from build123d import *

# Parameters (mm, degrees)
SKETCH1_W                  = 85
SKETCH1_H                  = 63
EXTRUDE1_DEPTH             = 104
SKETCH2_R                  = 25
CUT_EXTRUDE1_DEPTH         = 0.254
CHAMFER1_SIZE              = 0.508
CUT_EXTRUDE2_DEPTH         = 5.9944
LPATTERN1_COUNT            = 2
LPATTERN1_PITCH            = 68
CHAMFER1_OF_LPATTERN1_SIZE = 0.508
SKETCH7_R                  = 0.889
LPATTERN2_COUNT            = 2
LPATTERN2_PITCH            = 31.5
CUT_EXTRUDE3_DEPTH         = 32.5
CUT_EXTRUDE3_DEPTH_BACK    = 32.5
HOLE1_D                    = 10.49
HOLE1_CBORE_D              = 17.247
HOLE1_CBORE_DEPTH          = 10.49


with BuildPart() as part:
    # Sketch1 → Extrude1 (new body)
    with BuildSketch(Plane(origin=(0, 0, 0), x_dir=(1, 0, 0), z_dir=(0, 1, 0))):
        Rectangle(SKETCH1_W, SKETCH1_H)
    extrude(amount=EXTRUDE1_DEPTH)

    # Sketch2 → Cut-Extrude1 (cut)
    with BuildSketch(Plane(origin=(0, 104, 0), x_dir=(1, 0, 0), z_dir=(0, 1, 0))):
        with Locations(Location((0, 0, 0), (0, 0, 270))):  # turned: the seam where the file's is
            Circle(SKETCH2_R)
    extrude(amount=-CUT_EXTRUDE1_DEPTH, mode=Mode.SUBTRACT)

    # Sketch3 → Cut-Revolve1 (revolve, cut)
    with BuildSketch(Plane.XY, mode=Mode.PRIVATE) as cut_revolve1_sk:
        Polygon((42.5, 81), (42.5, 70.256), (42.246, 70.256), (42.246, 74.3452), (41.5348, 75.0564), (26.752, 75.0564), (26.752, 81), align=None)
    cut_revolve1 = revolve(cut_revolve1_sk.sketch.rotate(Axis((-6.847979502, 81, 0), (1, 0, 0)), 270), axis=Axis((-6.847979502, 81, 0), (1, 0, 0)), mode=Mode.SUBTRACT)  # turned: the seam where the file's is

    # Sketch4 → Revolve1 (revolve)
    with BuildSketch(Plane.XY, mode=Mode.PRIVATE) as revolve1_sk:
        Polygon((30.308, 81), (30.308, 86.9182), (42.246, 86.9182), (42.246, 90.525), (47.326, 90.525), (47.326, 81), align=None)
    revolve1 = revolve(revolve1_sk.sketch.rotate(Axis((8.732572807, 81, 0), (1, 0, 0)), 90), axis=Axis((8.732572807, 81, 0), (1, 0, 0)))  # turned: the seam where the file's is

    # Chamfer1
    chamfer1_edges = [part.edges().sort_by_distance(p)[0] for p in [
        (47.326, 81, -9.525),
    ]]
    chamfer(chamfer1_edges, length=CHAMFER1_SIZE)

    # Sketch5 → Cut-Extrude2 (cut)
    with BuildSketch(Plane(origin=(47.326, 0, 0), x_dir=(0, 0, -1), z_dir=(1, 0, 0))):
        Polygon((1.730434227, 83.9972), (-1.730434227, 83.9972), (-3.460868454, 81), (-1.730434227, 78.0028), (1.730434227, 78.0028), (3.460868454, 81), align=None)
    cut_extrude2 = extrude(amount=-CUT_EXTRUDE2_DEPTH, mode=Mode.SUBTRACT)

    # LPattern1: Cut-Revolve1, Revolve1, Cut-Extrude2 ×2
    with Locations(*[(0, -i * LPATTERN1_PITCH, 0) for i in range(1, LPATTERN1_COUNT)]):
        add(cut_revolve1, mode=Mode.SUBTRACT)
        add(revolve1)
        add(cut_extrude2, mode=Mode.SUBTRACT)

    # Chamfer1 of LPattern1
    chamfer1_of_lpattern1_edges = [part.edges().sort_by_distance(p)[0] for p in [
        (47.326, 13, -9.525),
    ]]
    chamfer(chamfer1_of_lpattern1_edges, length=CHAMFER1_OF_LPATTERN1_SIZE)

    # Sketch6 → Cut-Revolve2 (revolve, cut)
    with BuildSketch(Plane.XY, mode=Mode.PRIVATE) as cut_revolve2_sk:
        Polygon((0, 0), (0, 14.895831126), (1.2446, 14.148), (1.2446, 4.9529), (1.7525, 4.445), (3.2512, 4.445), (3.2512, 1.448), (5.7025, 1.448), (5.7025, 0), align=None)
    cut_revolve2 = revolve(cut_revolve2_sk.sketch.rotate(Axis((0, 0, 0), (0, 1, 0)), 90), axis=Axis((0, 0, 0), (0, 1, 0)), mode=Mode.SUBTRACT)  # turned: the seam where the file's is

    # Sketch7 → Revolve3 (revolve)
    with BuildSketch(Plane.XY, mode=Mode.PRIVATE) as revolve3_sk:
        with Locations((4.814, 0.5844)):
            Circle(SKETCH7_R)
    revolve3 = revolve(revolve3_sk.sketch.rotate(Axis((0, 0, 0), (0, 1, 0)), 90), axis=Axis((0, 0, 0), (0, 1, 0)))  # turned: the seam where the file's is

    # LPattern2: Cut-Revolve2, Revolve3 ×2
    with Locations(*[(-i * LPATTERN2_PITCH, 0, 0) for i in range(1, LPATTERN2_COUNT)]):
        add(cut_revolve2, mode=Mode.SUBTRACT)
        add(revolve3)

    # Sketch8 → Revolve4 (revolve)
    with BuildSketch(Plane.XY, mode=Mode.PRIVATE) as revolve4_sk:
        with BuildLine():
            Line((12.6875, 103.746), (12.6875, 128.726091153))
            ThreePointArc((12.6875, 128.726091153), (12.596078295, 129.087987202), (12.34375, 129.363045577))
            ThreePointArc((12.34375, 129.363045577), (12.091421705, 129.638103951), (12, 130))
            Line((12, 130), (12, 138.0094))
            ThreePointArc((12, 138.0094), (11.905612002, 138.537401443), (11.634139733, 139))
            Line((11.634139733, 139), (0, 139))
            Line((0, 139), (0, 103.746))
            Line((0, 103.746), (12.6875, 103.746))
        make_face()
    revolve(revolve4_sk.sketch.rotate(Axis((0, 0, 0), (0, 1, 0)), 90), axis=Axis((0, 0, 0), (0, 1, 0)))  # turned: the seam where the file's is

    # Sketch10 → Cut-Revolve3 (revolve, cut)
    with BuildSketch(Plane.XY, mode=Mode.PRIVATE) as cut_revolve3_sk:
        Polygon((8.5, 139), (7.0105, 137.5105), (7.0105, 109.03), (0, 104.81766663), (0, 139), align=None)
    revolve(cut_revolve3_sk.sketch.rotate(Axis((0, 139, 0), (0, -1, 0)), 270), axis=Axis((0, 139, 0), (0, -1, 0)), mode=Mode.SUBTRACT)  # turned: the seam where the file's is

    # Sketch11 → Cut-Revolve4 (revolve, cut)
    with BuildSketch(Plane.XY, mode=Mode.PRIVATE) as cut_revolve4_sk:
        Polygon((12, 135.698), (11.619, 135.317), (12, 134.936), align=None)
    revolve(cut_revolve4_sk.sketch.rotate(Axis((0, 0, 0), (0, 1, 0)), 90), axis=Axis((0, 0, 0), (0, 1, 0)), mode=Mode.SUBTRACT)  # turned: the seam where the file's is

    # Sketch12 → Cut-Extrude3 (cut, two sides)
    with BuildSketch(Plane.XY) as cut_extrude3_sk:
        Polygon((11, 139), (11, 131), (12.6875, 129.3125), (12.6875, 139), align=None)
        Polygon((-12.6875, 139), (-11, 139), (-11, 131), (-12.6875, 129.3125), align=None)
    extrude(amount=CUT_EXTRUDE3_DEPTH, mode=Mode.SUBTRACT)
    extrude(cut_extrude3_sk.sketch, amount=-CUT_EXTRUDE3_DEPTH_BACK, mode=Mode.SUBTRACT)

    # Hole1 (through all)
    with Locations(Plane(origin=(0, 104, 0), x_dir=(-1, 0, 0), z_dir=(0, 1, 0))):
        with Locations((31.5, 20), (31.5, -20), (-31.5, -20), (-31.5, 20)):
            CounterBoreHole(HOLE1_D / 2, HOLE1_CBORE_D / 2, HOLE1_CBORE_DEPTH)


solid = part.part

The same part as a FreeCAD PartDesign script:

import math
import FreeCAD as App
import Part
import Sketcher

V = App.Vector
Q = App.Units.Quantity


def edges_at(feature, points):
    """Names of the edges that pass closest to the given points."""
    edges = feature.Shape.Edges
    near = lambda p: min(range(len(edges)), key=lambda i: edges[i].distToShape(Part.Vertex(*p))[0])
    return sorted({f"Edge{near(p) + 1}" for p in points})

doc = App.newDocument("Part")
body = doc.addObject("PartDesign::Body", "Body")

# Sketch on XZ plane
sketch1 = body.newObject("Sketcher::SketchObject", "Sketch")
sketch1.AttachmentSupport = (doc.getObject("XZ_Plane"), [""])
sketch1.MapMode = "FlatFace"
sketch1.addGeometry(Part.LineSegment(V(-42, -32, 0), V(-42, 32, 0)), False)
sketch1.addGeometry(Part.LineSegment(V(-42, 32, 0), V(42, 32, 0)), False)
sketch1.addGeometry(Part.LineSegment(V(42, 32, 0), V(42, -32, 0)), False)
sketch1.addGeometry(Part.LineSegment(V(42, -32, 0), V(-42, -32, 0)), False)
sketch1.addConstraint(Sketcher.Constraint("Coincident", 0, 2, 1, 1))
sketch1.addConstraint(Sketcher.Constraint("Coincident", 1, 2, 2, 1))
sketch1.addConstraint(Sketcher.Constraint("Coincident", 2, 2, 3, 1))
sketch1.addConstraint(Sketcher.Constraint("Coincident", 3, 2, 0, 1))
sketch1.addConstraint(Sketcher.Constraint("Vertical", 0))
sketch1.addConstraint(Sketcher.Constraint("Horizontal", 1))
sketch1.addConstraint(Sketcher.Constraint("Vertical", 2))
sketch1.addConstraint(Sketcher.Constraint("Horizontal", 3))
sketch1.addConstraint(Sketcher.Constraint("Symmetric", 0, 2, 2, 2, -1, 1))
sketch1.addConstraint(Sketcher.Constraint("DistanceX", 1, 1, 1, 2, 85.0))
sketch1.addConstraint(Sketcher.Constraint("DistanceY", 0, 1, 0, 2, 63.0))
pad1 = body.newObject("PartDesign::Pad", "Pad")
pad1.Profile = sketch1
pad1.Length = 104
pad1.Reversed = True

# Sketch on XZ plane
sketch2 = body.newObject("Sketcher::SketchObject", "Sketch001")
sketch2.AttachmentSupport = (doc.getObject("XZ_Plane"), [""])
sketch2.MapMode = "FlatFace"
sketch2.AttachmentOffset = App.Placement(V(0, 0, -104), App.Rotation())
sketch2.addGeometry(Part.Circle(V(0, 0, 0), V(0, 0, 1), 25), False)
sketch2.addConstraint(Sketcher.Constraint("Coincident", 0, 3, -1, 1))
sketch2.addConstraint(Sketcher.Constraint("Diameter", 0, 50.0))
pocket1 = body.newObject("PartDesign::Pocket", "Pocket")
pocket1.Profile = sketch2
pocket1.Length = Q("0.01 in")
pocket1.Reversed = True

# Sketch on XY plane
sketch3 = body.newObject("Sketcher::SketchObject", "Sketch002")
sketch3.AttachmentSupport = (doc.getObject("XY_Plane"), [""])
sketch3.MapMode = "FlatFace"
sketch3.addGeometry(Part.LineSegment(V(42.5, 70.26, 0), V(42.5, 81, 0)), False)
sketch3.addGeometry(Part.LineSegment(V(42.5, 81, 0), V(26.75, 81, 0)), False)
sketch3.addGeometry(Part.LineSegment(V(26.75, 81, 0), V(26.75, 75.06, 0)), False)
sketch3.addGeometry(Part.LineSegment(V(26.75, 75.06, 0), V(41.53, 75.06, 0)), False)
sketch3.addGeometry(Part.LineSegment(V(41.53, 75.06, 0), V(42.25, 74.35, 0)), False)
sketch3.addGeometry(Part.LineSegment(V(42.25, 74.35, 0), V(42.25, 70.26, 0)), False)
sketch3.addGeometry(Part.LineSegment(V(42.25, 70.26, 0), V(42.5, 70.26, 0)), False)
sketch3.addGeometry(Part.LineSegment(V(26.75, 81, 0), V(42.5, 81, 0)), True)  # axis
sketch3.addConstraint(Sketcher.Constraint("Coincident", 0, 2, 1, 1))
sketch3.addConstraint(Sketcher.Constraint("Coincident", 1, 2, 2, 1))
sketch3.addConstraint(Sketcher.Constraint("Coincident", 2, 2, 3, 1))
sketch3.addConstraint(Sketcher.Constraint("Coincident", 3, 2, 4, 1))
sketch3.addConstraint(Sketcher.Constraint("Coincident", 4, 2, 5, 1))
sketch3.addConstraint(Sketcher.Constraint("Coincident", 5, 2, 6, 1))
sketch3.addConstraint(Sketcher.Constraint("Coincident", 6, 2, 0, 1))
sketch3.addConstraint(Sketcher.Constraint("Vertical", 0))
sketch3.addConstraint(Sketcher.Constraint("Horizontal", 1))
sketch3.addConstraint(Sketcher.Constraint("Vertical", 2))
sketch3.addConstraint(Sketcher.Constraint("Horizontal", 3))
sketch3.addConstraint(Sketcher.Constraint("Vertical", 5))
sketch3.addConstraint(Sketcher.Constraint("Horizontal", 6))
sketch3.addConstraint(Sketcher.Constraint("Horizontal", 7))
sketch3.addConstraint(Sketcher.Constraint("Coincident", 7, 1, 1, 2))
sketch3.addConstraint(Sketcher.Constraint("Vertical", 6, 2, 7, 2))
sketch3.addConstraint(Sketcher.Constraint("Angle", 4, Q("-45 deg")))
sketch3.addConstraint(Sketcher.Constraint("DistanceX", 1, 2, 1, 1, Q("0.62 in")))
sketch3.addConstraint(Sketcher.Constraint("DistanceX", 6, 1, 6, 2, Q("0.01 in")))
sketch3.addConstraint(Sketcher.Constraint("DistanceX", 3, 1, 3, 2, Q("0.582 in")))
sketch3.addConstraint(Sketcher.Constraint("DistanceY", 2, 2, 2, 1, Q("0.234 in")))
sketch3.addConstraint(Sketcher.Constraint("DistanceY", 0, 1, 0, 2, 10.744))
sketch3.addConstraint(Sketcher.Constraint("DistanceX", -1, 1, 0, 2, 42.5))
sketch3.addConstraint(Sketcher.Constraint("DistanceY", -1, 1, 0, 2, 81.0))
groove = body.newObject("PartDesign::Groove", "Groove")
groove.Profile = sketch3
groove.ReferenceAxis = (sketch3, ["Axis0"])
groove.Angle = 360

# Sketch on XY plane
sketch4 = body.newObject("Sketcher::SketchObject", "Sketch003")
sketch4.AttachmentSupport = (doc.getObject("XY_Plane"), [""])
sketch4.MapMode = "FlatFace"
sketch4.addGeometry(Part.LineSegment(V(30.3, 86.9, 0), V(30.3, 81, 0)), False)
sketch4.addGeometry(Part.LineSegment(V(30.3, 81, 0), V(47.3, 81, 0)), False)
sketch4.addGeometry(Part.LineSegment(V(47.3, 81, 0), V(47.3, 90.5, 0)), False)
sketch4.addGeometry(Part.LineSegment(V(47.3, 90.5, 0), V(42.2, 90.5, 0)), False)
sketch4.addGeometry(Part.LineSegment(V(42.2, 90.5, 0), V(42.2, 86.9, 0)), False)
sketch4.addGeometry(Part.LineSegment(V(42.2, 86.9, 0), V(30.3, 86.9, 0)), False)
sketch4.addGeometry(Part.LineSegment(V(30.3, 81, 0), V(47.3, 81, 0)), True)  # axis
sketch4.addConstraint(Sketcher.Constraint("Coincident", 0, 2, 1, 1))
sketch4.addConstraint(Sketcher.Constraint("Coincident", 1, 2, 2, 1))
sketch4.addConstraint(Sketcher.Constraint("Coincident", 2, 2, 3, 1))
sketch4.addConstraint(Sketcher.Constraint("Coincident", 3, 2, 4, 1))
sketch4.addConstraint(Sketcher.Constraint("Coincident", 4, 2, 5, 1))
sketch4.addConstraint(Sketcher.Constraint("Coincident", 5, 2, 0, 1))
sketch4.addConstraint(Sketcher.Constraint("Vertical", 0))
sketch4.addConstraint(Sketcher.Constraint("Horizontal", 1))
sketch4.addConstraint(Sketcher.Constraint("Vertical", 2))
sketch4.addConstraint(Sketcher.Constraint("Horizontal", 3))
sketch4.addConstraint(Sketcher.Constraint("Vertical", 4))
sketch4.addConstraint(Sketcher.Constraint("Horizontal", 5))
sketch4.addConstraint(Sketcher.Constraint("Horizontal", 6))
sketch4.addConstraint(Sketcher.Constraint("Coincident", 6, 1, 0, 2))
sketch4.addConstraint(Sketcher.Constraint("Vertical", 2, 2, 6, 2))
sketch4.addConstraint(Sketcher.Constraint("DistanceX", 3, 2, 3, 1, Q("0.2 in")))
sketch4.addConstraint(Sketcher.Constraint("DistanceX", 1, 1, 1, 2, Q("0.67 in")))
sketch4.addConstraint(Sketcher.Constraint("DistanceY", 0, 2, 0, 1, Q("0.233 in")))
sketch4.addConstraint(Sketcher.Constraint("DistanceY", 2, 1, 2, 2, Q("0.375 in")))
sketch4.addConstraint(Sketcher.Constraint("DistanceX", -1, 1, 0, 2, 30.308))
sketch4.addConstraint(Sketcher.Constraint("DistanceY", -1, 1, 0, 2, 81.0))
revolution = body.newObject("PartDesign::Revolution", "Revolution")
revolution.Profile = sketch4
revolution.ReferenceAxis = (sketch4, ["Axis0"])
revolution.Angle = 360
doc.recompute()

chamfer = body.newObject("PartDesign::Chamfer", "Chamfer")
chamfer.Base = (revolution, edges_at(revolution, [(47.326, 81, -9.525)]))
chamfer.Size = Q("0.02 in")

# Sketch on YZ plane
sketch5 = body.newObject("Sketcher::SketchObject", "Sketch004")
sketch5.AttachmentSupport = (doc.getObject("YZ_Plane"), [""])
sketch5.MapMode = "FlatFace"
sketch5.AttachmentOffset = App.Placement(V(0, 0, 47.326), App.Rotation())
sketch5.addGeometry(Part.LineSegment(V(84, -1.7, 0), V(84, 1.7, 0)), False)
sketch5.addGeometry(Part.LineSegment(V(84, 1.7, 0), V(81, 3.5, 0)), False)
sketch5.addGeometry(Part.LineSegment(V(81, 3.5, 0), V(78, 1.7, 0)), False)
sketch5.addGeometry(Part.LineSegment(V(78, 1.7, 0), V(78, -1.7, 0)), False)
sketch5.addGeometry(Part.LineSegment(V(78, -1.7, 0), V(81, -3.5, 0)), False)
sketch5.addGeometry(Part.LineSegment(V(81, -3.5, 0), V(84, -1.7, 0)), False)
sketch5.addConstraint(Sketcher.Constraint("Coincident", 0, 2, 1, 1))
sketch5.addConstraint(Sketcher.Constraint("Coincident", 1, 2, 2, 1))
sketch5.addConstraint(Sketcher.Constraint("Coincident", 2, 2, 3, 1))
sketch5.addConstraint(Sketcher.Constraint("Coincident", 3, 2, 4, 1))
sketch5.addConstraint(Sketcher.Constraint("Coincident", 4, 2, 5, 1))
sketch5.addConstraint(Sketcher.Constraint("Coincident", 5, 2, 0, 1))
sketch5.addConstraint(Sketcher.Constraint("Vertical", 0))
sketch5.addConstraint(Sketcher.Constraint("Vertical", 3))
sketch5.addConstraint(Sketcher.Constraint("Symmetric", 1, 2, 4, 2, -1))
sketch5.addConstraint(Sketcher.Constraint("Parallel", 1, 4))
sketch5.addConstraint(Sketcher.Constraint("Parallel", 2, 5))
sketch5.addConstraint(Sketcher.Constraint("Horizontal", 0, 2, 2, 2))
sketch5.addConstraint(Sketcher.Constraint("Horizontal", 3, 2, 5, 2))
sketch5.addConstraint(Sketcher.Constraint("Angle", 1, Q("150 deg")))
sketch5.addConstraint(Sketcher.Constraint("DistanceX", 1, 2, 0, 2, Q("0.118 in")))
sketch5.addConstraint(Sketcher.Constraint("DistanceY", 0, 1, 0, 2, 3.460868))
sketch5.addConstraint(Sketcher.Constraint("DistanceX", -1, 1, 0, 2, 83.9972))
pocket2 = body.newObject("PartDesign::Pocket", "Pocket001")
pocket2.Profile = sketch5
pocket2.Length = Q("0.236 in")
doc.recompute()

linearpattern = body.newObject("PartDesign::LinearPattern", "LinearPattern")
linearpattern.Originals = [groove, revolution, pocket2]
linearpattern.Direction = (doc.getObject("Y_Axis"), [""])
linearpattern.Mode = "offset"
linearpattern.Offset = 68
linearpattern.Occurrences = 2
linearpattern.Reversed = True
body.Tip = linearpattern
doc.recompute()

chamfer2 = body.newObject("PartDesign::Chamfer", "Chamfer001")
chamfer2.Base = (linearpattern, edges_at(linearpattern, [(47.326, 13, -9.525)]))
chamfer2.Size = Q("0.02 in")

# Sketch on XY plane
sketch6 = body.newObject("Sketcher::SketchObject", "Sketch005")
sketch6.AttachmentSupport = (doc.getObject("XY_Plane"), [""])
sketch6.MapMode = "FlatFace"
sketch6.addGeometry(Part.LineSegment(V(0, 14.9, 0), V(0, 0, 0)), False)
sketch6.addGeometry(Part.LineSegment(V(0, 0, 0), V(5.7, 0, 0)), False)
sketch6.addGeometry(Part.LineSegment(V(5.7, 0, 0), V(5.7, 1.4, 0)), False)
sketch6.addGeometry(Part.LineSegment(V(5.7, 1.4, 0), V(3.3, 1.4, 0)), False)
sketch6.addGeometry(Part.LineSegment(V(3.3, 1.4, 0), V(3.3, 4.4, 0)), False)
sketch6.addGeometry(Part.LineSegment(V(3.3, 4.4, 0), V(1.8, 4.4, 0)), False)
sketch6.addGeometry(Part.LineSegment(V(1.8, 4.4, 0), V(1.2, 5, 0)), False)
sketch6.addGeometry(Part.LineSegment(V(1.2, 5, 0), V(1.2, 14.1, 0)), False)
sketch6.addGeometry(Part.LineSegment(V(1.2, 14.1, 0), V(0, 14.9, 0)), False)
sketch6.addConstraint(Sketcher.Constraint("Coincident", 0, 2, 1, 1))
sketch6.addConstraint(Sketcher.Constraint("Coincident", 1, 2, 2, 1))
sketch6.addConstraint(Sketcher.Constraint("Coincident", 2, 2, 3, 1))
sketch6.addConstraint(Sketcher.Constraint("Coincident", 3, 2, 4, 1))
sketch6.addConstraint(Sketcher.Constraint("Coincident", 4, 2, 5, 1))
sketch6.addConstraint(Sketcher.Constraint("Coincident", 5, 2, 6, 1))
sketch6.addConstraint(Sketcher.Constraint("Coincident", 6, 2, 7, 1))
sketch6.addConstraint(Sketcher.Constraint("Coincident", 7, 2, 8, 1))
sketch6.addConstraint(Sketcher.Constraint("Coincident", 8, 2, 0, 1))
sketch6.addConstraint(Sketcher.Constraint("Vertical", 0))
sketch6.addConstraint(Sketcher.Constraint("Horizontal", 1))
sketch6.addConstraint(Sketcher.Constraint("Vertical", 2))
sketch6.addConstraint(Sketcher.Constraint("Horizontal", 3))
sketch6.addConstraint(Sketcher.Constraint("Vertical", 4))
sketch6.addConstraint(Sketcher.Constraint("Horizontal", 5))
sketch6.addConstraint(Sketcher.Constraint("Vertical", 7))
sketch6.addConstraint(Sketcher.Constraint("Coincident", 0, 2, -1, 1))
sketch6.addConstraint(Sketcher.Constraint("Angle", 6, Q("135 deg")))
sketch6.addConstraint(Sketcher.Constraint("Angle", 8, Q("149 deg")))
sketch6.addConstraint(Sketcher.Constraint("DistanceY", 3, 2, 7, 2, Q("0.5 in")))
sketch6.addConstraint(Sketcher.Constraint("DistanceX", -1, 1, 3, 2, Q("0.128 in")))
sketch6.addConstraint(Sketcher.Constraint("DistanceY", -1, 1, 4, 2, Q("0.175 in")))
sketch6.addConstraint(Sketcher.Constraint("DistanceX", -1, 1, 6, 2, Q("0.049 in")))
sketch6.addConstraint(Sketcher.Constraint("DistanceX", 1, 1, 1, 2, 5.7025))
sketch6.addConstraint(Sketcher.Constraint("DistanceX", 5, 2, 5, 1, 1.4987))
sketch6.addConstraint(Sketcher.Constraint("DistanceY", 2, 1, 2, 2, 1.448))
groove2 = body.newObject("PartDesign::Groove", "Groove001")
groove2.Profile = sketch6
groove2.ReferenceAxis = (sketch6, ["V_Axis"])
groove2.Angle = 360

# Sketch on XY plane
sketch7 = body.newObject("Sketcher::SketchObject", "Sketch006")
sketch7.AttachmentSupport = (doc.getObject("XY_Plane"), [""])
sketch7.MapMode = "FlatFace"
sketch7.addGeometry(Part.Circle(V(4.8, 0.6, 0), V(0, 0, 1), 0.9), False)
sketch7.addConstraint(Sketcher.Constraint("Diameter", 0, Q("0.07 in")))
sketch7.addConstraint(Sketcher.Constraint("DistanceX", -1, 1, 0, 3, 4.814))
sketch7.addConstraint(Sketcher.Constraint("DistanceY", -1, 1, 0, 3, 0.5844))
revolution2 = body.newObject("PartDesign::Revolution", "Revolution001")
revolution2.Profile = sketch7
revolution2.ReferenceAxis = (sketch7, ["V_Axis"])
revolution2.Angle = 360
doc.recompute()

linearpattern2 = body.newObject("PartDesign::LinearPattern", "LinearPattern001")
linearpattern2.Originals = [groove2, revolution2]
linearpattern2.Direction = (doc.getObject("X_Axis"), [""])
linearpattern2.Mode = "offset"
linearpattern2.Offset = 31.5
linearpattern2.Occurrences = 2
linearpattern2.Reversed = True
body.Tip = linearpattern2

# Sketch on XY plane
sketch8 = body.newObject("Sketcher::SketchObject", "Sketch007")
sketch8.AttachmentSupport = (doc.getObject("XY_Plane"), [""])
sketch8.MapMode = "FlatFace"
sketch8.addGeometry(Part.LineSegment(V(12.7, 103.7, 0), V(12.7, 128.7, 0)), False)
sketch8.addGeometry(Part.ArcOfCircle(Part.Circle(V(11.9, 128.7, 0), V(0, 0, 1), 0.8), math.radians(0), math.radians(57)), False)
sketch8.addGeometry(Part.ArcOfCircle(Part.Circle(V(12.8, 130, 0), V(0, 0, 1), 0.8), math.radians(180), math.radians(237)), False)
sketch8.addGeometry(Part.LineSegment(V(12, 130, 0), V(12, 138, 0)), False)
sketch8.addGeometry(Part.ArcOfCircle(Part.Circle(V(10.5, 138, 0), V(0, 0, 1), 1.5), math.radians(0), math.radians(41)), False)
sketch8.addGeometry(Part.LineSegment(V(11.6, 139, 0), V(0, 139, 0)), False)
sketch8.addGeometry(Part.LineSegment(V(0, 139, 0), V(0, 103.7, 0)), False)
sketch8.addGeometry(Part.LineSegment(V(0, 103.7, 0), V(12.7, 103.7, 0)), False)
sketch8.addConstraint(Sketcher.Constraint("Tangent", 0, 2, 1, 1))
sketch8.addConstraint(Sketcher.Constraint("Tangent", 1, 2, 2, 2))
sketch8.addConstraint(Sketcher.Constraint("Tangent", 2, 1, 3, 1))
sketch8.addConstraint(Sketcher.Constraint("Tangent", 3, 2, 4, 1))
sketch8.addConstraint(Sketcher.Constraint("Coincident", 4, 2, 5, 1))
sketch8.addConstraint(Sketcher.Constraint("Coincident", 5, 2, 6, 1))
sketch8.addConstraint(Sketcher.Constraint("Coincident", 6, 2, 7, 1))
sketch8.addConstraint(Sketcher.Constraint("Coincident", 7, 2, 0, 1))
sketch8.addConstraint(Sketcher.Constraint("Vertical", 0))
sketch8.addConstraint(Sketcher.Constraint("Vertical", 3))
sketch8.addConstraint(Sketcher.Constraint("Horizontal", 5))
sketch8.addConstraint(Sketcher.Constraint("Vertical", 6))
sketch8.addConstraint(Sketcher.Constraint("Horizontal", 7))
sketch8.addConstraint(Sketcher.Constraint("Equal", 1, 2))
sketch8.addConstraint(Sketcher.Constraint("PointOnObject", 5, 2, -2))
sketch8.addConstraint(Sketcher.Constraint("Radius", 1, Q("0.03 in")))
sketch8.addConstraint(Sketcher.Constraint("Radius", 4, Q("0.06 in")))
sketch8.addConstraint(Sketcher.Constraint("DistanceY", 3, 2, 4, 2, Q("0.039 in")))
sketch8.addConstraint(Sketcher.Constraint("DistanceX", 7, 1, 7, 2, 12.6875))
sketch8.addConstraint(Sketcher.Constraint("DistanceY", 3, 1, 3, 2, 8.0094))
sketch8.addConstraint(Sketcher.Constraint("DistanceY", 6, 2, 6, 1, 35.254))
sketch8.addConstraint(Sketcher.Constraint("DistanceX", 5, 2, 5, 1, 11.63414))
sketch8.addConstraint(Sketcher.Constraint("DistanceY", -1, 1, 2, 3, 130.0))
revolution3 = body.newObject("PartDesign::Revolution", "Revolution002")
revolution3.Profile = sketch8
revolution3.ReferenceAxis = (sketch8, ["V_Axis"])
revolution3.Angle = 360

# Sketch on XY plane
sketch9 = body.newObject("Sketcher::SketchObject", "Sketch008")
sketch9.AttachmentSupport = (doc.getObject("XY_Plane"), [""])
sketch9.MapMode = "FlatFace"
sketch9.addGeometry(Part.LineSegment(V(7, 137.5, 0), V(8.5, 139, 0)), False)
sketch9.addGeometry(Part.LineSegment(V(8.5, 139, 0), V(0, 139, 0)), False)
sketch9.addGeometry(Part.LineSegment(V(0, 139, 0), V(0, 104.8, 0)), False)
sketch9.addGeometry(Part.LineSegment(V(0, 104.8, 0), V(7, 109, 0)), False)
sketch9.addGeometry(Part.LineSegment(V(7, 109, 0), V(7, 137.5, 0)), False)
sketch9.addConstraint(Sketcher.Constraint("Coincident", 0, 2, 1, 1))
sketch9.addConstraint(Sketcher.Constraint("Coincident", 1, 2, 2, 1))
sketch9.addConstraint(Sketcher.Constraint("Coincident", 2, 2, 3, 1))
sketch9.addConstraint(Sketcher.Constraint("Coincident", 3, 2, 4, 1))
sketch9.addConstraint(Sketcher.Constraint("Coincident", 4, 2, 0, 1))
sketch9.addConstraint(Sketcher.Constraint("Horizontal", 1))
sketch9.addConstraint(Sketcher.Constraint("Vertical", 2))
sketch9.addConstraint(Sketcher.Constraint("Vertical", 4))
sketch9.addConstraint(Sketcher.Constraint("PointOnObject", 1, 2, -2))
sketch9.addConstraint(Sketcher.Constraint("Angle", 0, Q("45 deg")))
sketch9.addConstraint(Sketcher.Constraint("Angle", 3, Q("31 deg")))
sketch9.addConstraint(Sketcher.Constraint("DistanceX", 1, 2, 1, 1, 8.5))
sketch9.addConstraint(Sketcher.Constraint("DistanceY", 4, 1, 4, 2, 28.4805))
sketch9.addConstraint(Sketcher.Constraint("DistanceY", -1, 1, 0, 2, 139.0))
sketch9.addConstraint(Sketcher.Constraint("DistanceX", -1, 1, 3, 2, 7.0105))
groove3 = body.newObject("PartDesign::Groove", "Groove002")
groove3.Profile = sketch9
groove3.ReferenceAxis = (sketch9, ["V_Axis"])
groove3.Angle = 360

# Sketch on XY plane
sketch10 = body.newObject("Sketcher::SketchObject", "Sketch009")
sketch10.AttachmentSupport = (doc.getObject("XY_Plane"), [""])
sketch10.MapMode = "FlatFace"
sketch10.addGeometry(Part.LineSegment(V(12, 135.7, 0), V(11.6, 135.3, 0)), False)
sketch10.addGeometry(Part.LineSegment(V(11.6, 135.3, 0), V(12, 134.9, 0)), False)
sketch10.addGeometry(Part.LineSegment(V(12, 134.9, 0), V(12, 135.7, 0)), False)
sketch10.addConstraint(Sketcher.Constraint("Coincident", 0, 2, 1, 1))
sketch10.addConstraint(Sketcher.Constraint("Coincident", 1, 2, 2, 1))
sketch10.addConstraint(Sketcher.Constraint("Coincident", 2, 2, 0, 1))
sketch10.addConstraint(Sketcher.Constraint("Vertical", 2))
sketch10.addConstraint(Sketcher.Constraint("Perpendicular", 0, 1))
sketch10.addConstraint(Sketcher.Constraint("Equal", 0, 1))
sketch10.addConstraint(Sketcher.Constraint("DistanceY", 2, 1, 2, 2, Q("0.03 in")))
sketch10.addConstraint(Sketcher.Constraint("DistanceX", -1, 1, 0, 2, 11.619))
sketch10.addConstraint(Sketcher.Constraint("DistanceY", -1, 1, 0, 2, 135.317))
groove4 = body.newObject("PartDesign::Groove", "Groove003")
groove4.Profile = sketch10
groove4.ReferenceAxis = (sketch10, ["V_Axis"])
groove4.Angle = 360

# Sketch on XY plane
sketch11 = body.newObject("Sketcher::SketchObject", "Sketch010")
sketch11.AttachmentSupport = (doc.getObject("XY_Plane"), [""])
sketch11.MapMode = "FlatFace"
sketch11.addGeometry(Part.LineSegment(V(11, 139, 0), V(11, 131, 0)), False)
sketch11.addGeometry(Part.LineSegment(V(11, 131, 0), V(12.7, 129.3, 0)), False)
sketch11.addGeometry(Part.LineSegment(V(12.7, 129.3, 0), V(12.7, 139, 0)), False)
sketch11.addGeometry(Part.LineSegment(V(12.7, 139, 0), V(11, 139, 0)), False)
sketch11.addGeometry(Part.LineSegment(V(-11, 139, 0), V(-12.7, 139, 0)), False)
sketch11.addGeometry(Part.LineSegment(V(-12.7, 139, 0), V(-12.7, 129.3, 0)), False)
sketch11.addGeometry(Part.LineSegment(V(-12.7, 129.3, 0), V(-11, 131, 0)), False)
sketch11.addGeometry(Part.LineSegment(V(-11, 131, 0), V(-11, 139, 0)), False)
sketch11.addConstraint(Sketcher.Constraint("Coincident", 0, 2, 1, 1))
sketch11.addConstraint(Sketcher.Constraint("Coincident", 1, 2, 2, 1))
sketch11.addConstraint(Sketcher.Constraint("Coincident", 2, 2, 3, 1))
sketch11.addConstraint(Sketcher.Constraint("Coincident", 3, 2, 0, 1))
sketch11.addConstraint(Sketcher.Constraint("Coincident", 4, 2, 5, 1))
sketch11.addConstraint(Sketcher.Constraint("Coincident", 5, 2, 6, 1))
sketch11.addConstraint(Sketcher.Constraint("Coincident", 6, 2, 7, 1))
sketch11.addConstraint(Sketcher.Constraint("Coincident", 7, 2, 4, 1))
sketch11.addConstraint(Sketcher.Constraint("Vertical", 0))
sketch11.addConstraint(Sketcher.Constraint("Vertical", 2))
sketch11.addConstraint(Sketcher.Constraint("Horizontal", 3))
sketch11.addConstraint(Sketcher.Constraint("Horizontal", 4))
sketch11.addConstraint(Sketcher.Constraint("Vertical", 5))
sketch11.addConstraint(Sketcher.Constraint("Vertical", 7))
sketch11.addConstraint(Sketcher.Constraint("Symmetric", 2, 2, 4, 2, -2))
sketch11.addConstraint(Sketcher.Constraint("Symmetric", 0, 2, 6, 2, -2))
sketch11.addConstraint(Sketcher.Constraint("Perpendicular", 1, 6))
sketch11.addConstraint(Sketcher.Constraint("Horizontal", 1, 2, 5, 2))
sketch11.addConstraint(Sketcher.Constraint("DistanceX", 3, 2, 3, 1, 1.6875))
sketch11.addConstraint(Sketcher.Constraint("DistanceY", 0, 2, 0, 1, 8.0))
sketch11.addConstraint(Sketcher.Constraint("DistanceX", -1, 1, 0, 2, 11.0))
sketch11.addConstraint(Sketcher.Constraint("DistanceY", -1, 1, 0, 2, 131.0))
pocket3 = body.newObject("PartDesign::Pocket", "Pocket002")
pocket3.Profile = sketch11
pocket3.Type = "ThroughAll"
pocket3.Midplane = True

# Sketch on XZ plane
sketch12 = body.newObject("Sketcher::SketchObject", "Sketch011")
sketch12.AttachmentSupport = (doc.getObject("XZ_Plane"), [""])
sketch12.MapMode = "FlatFace"
sketch12.AttachmentOffset = App.Placement(V(0, 0, -104), App.Rotation())
sketch12.addGeometry(Part.Circle(V(-32, 20, 0), V(0, 0, 1), 5), False)
sketch12.addGeometry(Part.Circle(V(-32, -20, 0), V(0, 0, 1), 5), False)
sketch12.addGeometry(Part.Circle(V(32, -20, 0), V(0, 0, 1), 5), False)
sketch12.addGeometry(Part.Circle(V(32, 20, 0), V(0, 0, 1), 5), False)
sketch12.addConstraint(Sketcher.Constraint("Equal", 0, 1))
sketch12.addConstraint(Sketcher.Constraint("Equal", 1, 2))
sketch12.addConstraint(Sketcher.Constraint("Equal", 2, 3))
sketch12.addConstraint(Sketcher.Constraint("Symmetric", 0, 3, 2, 3, -1, 1))
sketch12.addConstraint(Sketcher.Constraint("Symmetric", 1, 3, 3, 3, -1, 1))
sketch12.addConstraint(Sketcher.Constraint("Symmetric", 1, 3, 2, 3, -2))
sketch12.addConstraint(Sketcher.Constraint("Diameter", 0, 10.49))
sketch12.addConstraint(Sketcher.Constraint("DistanceX", 0, 3, -1, 1, 31.5))
sketch12.addConstraint(Sketcher.Constraint("DistanceY", -1, 1, 0, 3, 20.0))
doc.recompute()
hole = body.newObject("PartDesign::Hole", "Hole")
hole.Profile = sketch12
hole.ThreadType = "None"
hole.Diameter = 10.49
hole.DepthType = "ThroughAll"
hole.HoleCutType = "Counterbore"
hole.HoleCutDiameter = 17.247
hole.HoleCutDepth = 10.49
hole.Reversed = True

doc.recompute()
